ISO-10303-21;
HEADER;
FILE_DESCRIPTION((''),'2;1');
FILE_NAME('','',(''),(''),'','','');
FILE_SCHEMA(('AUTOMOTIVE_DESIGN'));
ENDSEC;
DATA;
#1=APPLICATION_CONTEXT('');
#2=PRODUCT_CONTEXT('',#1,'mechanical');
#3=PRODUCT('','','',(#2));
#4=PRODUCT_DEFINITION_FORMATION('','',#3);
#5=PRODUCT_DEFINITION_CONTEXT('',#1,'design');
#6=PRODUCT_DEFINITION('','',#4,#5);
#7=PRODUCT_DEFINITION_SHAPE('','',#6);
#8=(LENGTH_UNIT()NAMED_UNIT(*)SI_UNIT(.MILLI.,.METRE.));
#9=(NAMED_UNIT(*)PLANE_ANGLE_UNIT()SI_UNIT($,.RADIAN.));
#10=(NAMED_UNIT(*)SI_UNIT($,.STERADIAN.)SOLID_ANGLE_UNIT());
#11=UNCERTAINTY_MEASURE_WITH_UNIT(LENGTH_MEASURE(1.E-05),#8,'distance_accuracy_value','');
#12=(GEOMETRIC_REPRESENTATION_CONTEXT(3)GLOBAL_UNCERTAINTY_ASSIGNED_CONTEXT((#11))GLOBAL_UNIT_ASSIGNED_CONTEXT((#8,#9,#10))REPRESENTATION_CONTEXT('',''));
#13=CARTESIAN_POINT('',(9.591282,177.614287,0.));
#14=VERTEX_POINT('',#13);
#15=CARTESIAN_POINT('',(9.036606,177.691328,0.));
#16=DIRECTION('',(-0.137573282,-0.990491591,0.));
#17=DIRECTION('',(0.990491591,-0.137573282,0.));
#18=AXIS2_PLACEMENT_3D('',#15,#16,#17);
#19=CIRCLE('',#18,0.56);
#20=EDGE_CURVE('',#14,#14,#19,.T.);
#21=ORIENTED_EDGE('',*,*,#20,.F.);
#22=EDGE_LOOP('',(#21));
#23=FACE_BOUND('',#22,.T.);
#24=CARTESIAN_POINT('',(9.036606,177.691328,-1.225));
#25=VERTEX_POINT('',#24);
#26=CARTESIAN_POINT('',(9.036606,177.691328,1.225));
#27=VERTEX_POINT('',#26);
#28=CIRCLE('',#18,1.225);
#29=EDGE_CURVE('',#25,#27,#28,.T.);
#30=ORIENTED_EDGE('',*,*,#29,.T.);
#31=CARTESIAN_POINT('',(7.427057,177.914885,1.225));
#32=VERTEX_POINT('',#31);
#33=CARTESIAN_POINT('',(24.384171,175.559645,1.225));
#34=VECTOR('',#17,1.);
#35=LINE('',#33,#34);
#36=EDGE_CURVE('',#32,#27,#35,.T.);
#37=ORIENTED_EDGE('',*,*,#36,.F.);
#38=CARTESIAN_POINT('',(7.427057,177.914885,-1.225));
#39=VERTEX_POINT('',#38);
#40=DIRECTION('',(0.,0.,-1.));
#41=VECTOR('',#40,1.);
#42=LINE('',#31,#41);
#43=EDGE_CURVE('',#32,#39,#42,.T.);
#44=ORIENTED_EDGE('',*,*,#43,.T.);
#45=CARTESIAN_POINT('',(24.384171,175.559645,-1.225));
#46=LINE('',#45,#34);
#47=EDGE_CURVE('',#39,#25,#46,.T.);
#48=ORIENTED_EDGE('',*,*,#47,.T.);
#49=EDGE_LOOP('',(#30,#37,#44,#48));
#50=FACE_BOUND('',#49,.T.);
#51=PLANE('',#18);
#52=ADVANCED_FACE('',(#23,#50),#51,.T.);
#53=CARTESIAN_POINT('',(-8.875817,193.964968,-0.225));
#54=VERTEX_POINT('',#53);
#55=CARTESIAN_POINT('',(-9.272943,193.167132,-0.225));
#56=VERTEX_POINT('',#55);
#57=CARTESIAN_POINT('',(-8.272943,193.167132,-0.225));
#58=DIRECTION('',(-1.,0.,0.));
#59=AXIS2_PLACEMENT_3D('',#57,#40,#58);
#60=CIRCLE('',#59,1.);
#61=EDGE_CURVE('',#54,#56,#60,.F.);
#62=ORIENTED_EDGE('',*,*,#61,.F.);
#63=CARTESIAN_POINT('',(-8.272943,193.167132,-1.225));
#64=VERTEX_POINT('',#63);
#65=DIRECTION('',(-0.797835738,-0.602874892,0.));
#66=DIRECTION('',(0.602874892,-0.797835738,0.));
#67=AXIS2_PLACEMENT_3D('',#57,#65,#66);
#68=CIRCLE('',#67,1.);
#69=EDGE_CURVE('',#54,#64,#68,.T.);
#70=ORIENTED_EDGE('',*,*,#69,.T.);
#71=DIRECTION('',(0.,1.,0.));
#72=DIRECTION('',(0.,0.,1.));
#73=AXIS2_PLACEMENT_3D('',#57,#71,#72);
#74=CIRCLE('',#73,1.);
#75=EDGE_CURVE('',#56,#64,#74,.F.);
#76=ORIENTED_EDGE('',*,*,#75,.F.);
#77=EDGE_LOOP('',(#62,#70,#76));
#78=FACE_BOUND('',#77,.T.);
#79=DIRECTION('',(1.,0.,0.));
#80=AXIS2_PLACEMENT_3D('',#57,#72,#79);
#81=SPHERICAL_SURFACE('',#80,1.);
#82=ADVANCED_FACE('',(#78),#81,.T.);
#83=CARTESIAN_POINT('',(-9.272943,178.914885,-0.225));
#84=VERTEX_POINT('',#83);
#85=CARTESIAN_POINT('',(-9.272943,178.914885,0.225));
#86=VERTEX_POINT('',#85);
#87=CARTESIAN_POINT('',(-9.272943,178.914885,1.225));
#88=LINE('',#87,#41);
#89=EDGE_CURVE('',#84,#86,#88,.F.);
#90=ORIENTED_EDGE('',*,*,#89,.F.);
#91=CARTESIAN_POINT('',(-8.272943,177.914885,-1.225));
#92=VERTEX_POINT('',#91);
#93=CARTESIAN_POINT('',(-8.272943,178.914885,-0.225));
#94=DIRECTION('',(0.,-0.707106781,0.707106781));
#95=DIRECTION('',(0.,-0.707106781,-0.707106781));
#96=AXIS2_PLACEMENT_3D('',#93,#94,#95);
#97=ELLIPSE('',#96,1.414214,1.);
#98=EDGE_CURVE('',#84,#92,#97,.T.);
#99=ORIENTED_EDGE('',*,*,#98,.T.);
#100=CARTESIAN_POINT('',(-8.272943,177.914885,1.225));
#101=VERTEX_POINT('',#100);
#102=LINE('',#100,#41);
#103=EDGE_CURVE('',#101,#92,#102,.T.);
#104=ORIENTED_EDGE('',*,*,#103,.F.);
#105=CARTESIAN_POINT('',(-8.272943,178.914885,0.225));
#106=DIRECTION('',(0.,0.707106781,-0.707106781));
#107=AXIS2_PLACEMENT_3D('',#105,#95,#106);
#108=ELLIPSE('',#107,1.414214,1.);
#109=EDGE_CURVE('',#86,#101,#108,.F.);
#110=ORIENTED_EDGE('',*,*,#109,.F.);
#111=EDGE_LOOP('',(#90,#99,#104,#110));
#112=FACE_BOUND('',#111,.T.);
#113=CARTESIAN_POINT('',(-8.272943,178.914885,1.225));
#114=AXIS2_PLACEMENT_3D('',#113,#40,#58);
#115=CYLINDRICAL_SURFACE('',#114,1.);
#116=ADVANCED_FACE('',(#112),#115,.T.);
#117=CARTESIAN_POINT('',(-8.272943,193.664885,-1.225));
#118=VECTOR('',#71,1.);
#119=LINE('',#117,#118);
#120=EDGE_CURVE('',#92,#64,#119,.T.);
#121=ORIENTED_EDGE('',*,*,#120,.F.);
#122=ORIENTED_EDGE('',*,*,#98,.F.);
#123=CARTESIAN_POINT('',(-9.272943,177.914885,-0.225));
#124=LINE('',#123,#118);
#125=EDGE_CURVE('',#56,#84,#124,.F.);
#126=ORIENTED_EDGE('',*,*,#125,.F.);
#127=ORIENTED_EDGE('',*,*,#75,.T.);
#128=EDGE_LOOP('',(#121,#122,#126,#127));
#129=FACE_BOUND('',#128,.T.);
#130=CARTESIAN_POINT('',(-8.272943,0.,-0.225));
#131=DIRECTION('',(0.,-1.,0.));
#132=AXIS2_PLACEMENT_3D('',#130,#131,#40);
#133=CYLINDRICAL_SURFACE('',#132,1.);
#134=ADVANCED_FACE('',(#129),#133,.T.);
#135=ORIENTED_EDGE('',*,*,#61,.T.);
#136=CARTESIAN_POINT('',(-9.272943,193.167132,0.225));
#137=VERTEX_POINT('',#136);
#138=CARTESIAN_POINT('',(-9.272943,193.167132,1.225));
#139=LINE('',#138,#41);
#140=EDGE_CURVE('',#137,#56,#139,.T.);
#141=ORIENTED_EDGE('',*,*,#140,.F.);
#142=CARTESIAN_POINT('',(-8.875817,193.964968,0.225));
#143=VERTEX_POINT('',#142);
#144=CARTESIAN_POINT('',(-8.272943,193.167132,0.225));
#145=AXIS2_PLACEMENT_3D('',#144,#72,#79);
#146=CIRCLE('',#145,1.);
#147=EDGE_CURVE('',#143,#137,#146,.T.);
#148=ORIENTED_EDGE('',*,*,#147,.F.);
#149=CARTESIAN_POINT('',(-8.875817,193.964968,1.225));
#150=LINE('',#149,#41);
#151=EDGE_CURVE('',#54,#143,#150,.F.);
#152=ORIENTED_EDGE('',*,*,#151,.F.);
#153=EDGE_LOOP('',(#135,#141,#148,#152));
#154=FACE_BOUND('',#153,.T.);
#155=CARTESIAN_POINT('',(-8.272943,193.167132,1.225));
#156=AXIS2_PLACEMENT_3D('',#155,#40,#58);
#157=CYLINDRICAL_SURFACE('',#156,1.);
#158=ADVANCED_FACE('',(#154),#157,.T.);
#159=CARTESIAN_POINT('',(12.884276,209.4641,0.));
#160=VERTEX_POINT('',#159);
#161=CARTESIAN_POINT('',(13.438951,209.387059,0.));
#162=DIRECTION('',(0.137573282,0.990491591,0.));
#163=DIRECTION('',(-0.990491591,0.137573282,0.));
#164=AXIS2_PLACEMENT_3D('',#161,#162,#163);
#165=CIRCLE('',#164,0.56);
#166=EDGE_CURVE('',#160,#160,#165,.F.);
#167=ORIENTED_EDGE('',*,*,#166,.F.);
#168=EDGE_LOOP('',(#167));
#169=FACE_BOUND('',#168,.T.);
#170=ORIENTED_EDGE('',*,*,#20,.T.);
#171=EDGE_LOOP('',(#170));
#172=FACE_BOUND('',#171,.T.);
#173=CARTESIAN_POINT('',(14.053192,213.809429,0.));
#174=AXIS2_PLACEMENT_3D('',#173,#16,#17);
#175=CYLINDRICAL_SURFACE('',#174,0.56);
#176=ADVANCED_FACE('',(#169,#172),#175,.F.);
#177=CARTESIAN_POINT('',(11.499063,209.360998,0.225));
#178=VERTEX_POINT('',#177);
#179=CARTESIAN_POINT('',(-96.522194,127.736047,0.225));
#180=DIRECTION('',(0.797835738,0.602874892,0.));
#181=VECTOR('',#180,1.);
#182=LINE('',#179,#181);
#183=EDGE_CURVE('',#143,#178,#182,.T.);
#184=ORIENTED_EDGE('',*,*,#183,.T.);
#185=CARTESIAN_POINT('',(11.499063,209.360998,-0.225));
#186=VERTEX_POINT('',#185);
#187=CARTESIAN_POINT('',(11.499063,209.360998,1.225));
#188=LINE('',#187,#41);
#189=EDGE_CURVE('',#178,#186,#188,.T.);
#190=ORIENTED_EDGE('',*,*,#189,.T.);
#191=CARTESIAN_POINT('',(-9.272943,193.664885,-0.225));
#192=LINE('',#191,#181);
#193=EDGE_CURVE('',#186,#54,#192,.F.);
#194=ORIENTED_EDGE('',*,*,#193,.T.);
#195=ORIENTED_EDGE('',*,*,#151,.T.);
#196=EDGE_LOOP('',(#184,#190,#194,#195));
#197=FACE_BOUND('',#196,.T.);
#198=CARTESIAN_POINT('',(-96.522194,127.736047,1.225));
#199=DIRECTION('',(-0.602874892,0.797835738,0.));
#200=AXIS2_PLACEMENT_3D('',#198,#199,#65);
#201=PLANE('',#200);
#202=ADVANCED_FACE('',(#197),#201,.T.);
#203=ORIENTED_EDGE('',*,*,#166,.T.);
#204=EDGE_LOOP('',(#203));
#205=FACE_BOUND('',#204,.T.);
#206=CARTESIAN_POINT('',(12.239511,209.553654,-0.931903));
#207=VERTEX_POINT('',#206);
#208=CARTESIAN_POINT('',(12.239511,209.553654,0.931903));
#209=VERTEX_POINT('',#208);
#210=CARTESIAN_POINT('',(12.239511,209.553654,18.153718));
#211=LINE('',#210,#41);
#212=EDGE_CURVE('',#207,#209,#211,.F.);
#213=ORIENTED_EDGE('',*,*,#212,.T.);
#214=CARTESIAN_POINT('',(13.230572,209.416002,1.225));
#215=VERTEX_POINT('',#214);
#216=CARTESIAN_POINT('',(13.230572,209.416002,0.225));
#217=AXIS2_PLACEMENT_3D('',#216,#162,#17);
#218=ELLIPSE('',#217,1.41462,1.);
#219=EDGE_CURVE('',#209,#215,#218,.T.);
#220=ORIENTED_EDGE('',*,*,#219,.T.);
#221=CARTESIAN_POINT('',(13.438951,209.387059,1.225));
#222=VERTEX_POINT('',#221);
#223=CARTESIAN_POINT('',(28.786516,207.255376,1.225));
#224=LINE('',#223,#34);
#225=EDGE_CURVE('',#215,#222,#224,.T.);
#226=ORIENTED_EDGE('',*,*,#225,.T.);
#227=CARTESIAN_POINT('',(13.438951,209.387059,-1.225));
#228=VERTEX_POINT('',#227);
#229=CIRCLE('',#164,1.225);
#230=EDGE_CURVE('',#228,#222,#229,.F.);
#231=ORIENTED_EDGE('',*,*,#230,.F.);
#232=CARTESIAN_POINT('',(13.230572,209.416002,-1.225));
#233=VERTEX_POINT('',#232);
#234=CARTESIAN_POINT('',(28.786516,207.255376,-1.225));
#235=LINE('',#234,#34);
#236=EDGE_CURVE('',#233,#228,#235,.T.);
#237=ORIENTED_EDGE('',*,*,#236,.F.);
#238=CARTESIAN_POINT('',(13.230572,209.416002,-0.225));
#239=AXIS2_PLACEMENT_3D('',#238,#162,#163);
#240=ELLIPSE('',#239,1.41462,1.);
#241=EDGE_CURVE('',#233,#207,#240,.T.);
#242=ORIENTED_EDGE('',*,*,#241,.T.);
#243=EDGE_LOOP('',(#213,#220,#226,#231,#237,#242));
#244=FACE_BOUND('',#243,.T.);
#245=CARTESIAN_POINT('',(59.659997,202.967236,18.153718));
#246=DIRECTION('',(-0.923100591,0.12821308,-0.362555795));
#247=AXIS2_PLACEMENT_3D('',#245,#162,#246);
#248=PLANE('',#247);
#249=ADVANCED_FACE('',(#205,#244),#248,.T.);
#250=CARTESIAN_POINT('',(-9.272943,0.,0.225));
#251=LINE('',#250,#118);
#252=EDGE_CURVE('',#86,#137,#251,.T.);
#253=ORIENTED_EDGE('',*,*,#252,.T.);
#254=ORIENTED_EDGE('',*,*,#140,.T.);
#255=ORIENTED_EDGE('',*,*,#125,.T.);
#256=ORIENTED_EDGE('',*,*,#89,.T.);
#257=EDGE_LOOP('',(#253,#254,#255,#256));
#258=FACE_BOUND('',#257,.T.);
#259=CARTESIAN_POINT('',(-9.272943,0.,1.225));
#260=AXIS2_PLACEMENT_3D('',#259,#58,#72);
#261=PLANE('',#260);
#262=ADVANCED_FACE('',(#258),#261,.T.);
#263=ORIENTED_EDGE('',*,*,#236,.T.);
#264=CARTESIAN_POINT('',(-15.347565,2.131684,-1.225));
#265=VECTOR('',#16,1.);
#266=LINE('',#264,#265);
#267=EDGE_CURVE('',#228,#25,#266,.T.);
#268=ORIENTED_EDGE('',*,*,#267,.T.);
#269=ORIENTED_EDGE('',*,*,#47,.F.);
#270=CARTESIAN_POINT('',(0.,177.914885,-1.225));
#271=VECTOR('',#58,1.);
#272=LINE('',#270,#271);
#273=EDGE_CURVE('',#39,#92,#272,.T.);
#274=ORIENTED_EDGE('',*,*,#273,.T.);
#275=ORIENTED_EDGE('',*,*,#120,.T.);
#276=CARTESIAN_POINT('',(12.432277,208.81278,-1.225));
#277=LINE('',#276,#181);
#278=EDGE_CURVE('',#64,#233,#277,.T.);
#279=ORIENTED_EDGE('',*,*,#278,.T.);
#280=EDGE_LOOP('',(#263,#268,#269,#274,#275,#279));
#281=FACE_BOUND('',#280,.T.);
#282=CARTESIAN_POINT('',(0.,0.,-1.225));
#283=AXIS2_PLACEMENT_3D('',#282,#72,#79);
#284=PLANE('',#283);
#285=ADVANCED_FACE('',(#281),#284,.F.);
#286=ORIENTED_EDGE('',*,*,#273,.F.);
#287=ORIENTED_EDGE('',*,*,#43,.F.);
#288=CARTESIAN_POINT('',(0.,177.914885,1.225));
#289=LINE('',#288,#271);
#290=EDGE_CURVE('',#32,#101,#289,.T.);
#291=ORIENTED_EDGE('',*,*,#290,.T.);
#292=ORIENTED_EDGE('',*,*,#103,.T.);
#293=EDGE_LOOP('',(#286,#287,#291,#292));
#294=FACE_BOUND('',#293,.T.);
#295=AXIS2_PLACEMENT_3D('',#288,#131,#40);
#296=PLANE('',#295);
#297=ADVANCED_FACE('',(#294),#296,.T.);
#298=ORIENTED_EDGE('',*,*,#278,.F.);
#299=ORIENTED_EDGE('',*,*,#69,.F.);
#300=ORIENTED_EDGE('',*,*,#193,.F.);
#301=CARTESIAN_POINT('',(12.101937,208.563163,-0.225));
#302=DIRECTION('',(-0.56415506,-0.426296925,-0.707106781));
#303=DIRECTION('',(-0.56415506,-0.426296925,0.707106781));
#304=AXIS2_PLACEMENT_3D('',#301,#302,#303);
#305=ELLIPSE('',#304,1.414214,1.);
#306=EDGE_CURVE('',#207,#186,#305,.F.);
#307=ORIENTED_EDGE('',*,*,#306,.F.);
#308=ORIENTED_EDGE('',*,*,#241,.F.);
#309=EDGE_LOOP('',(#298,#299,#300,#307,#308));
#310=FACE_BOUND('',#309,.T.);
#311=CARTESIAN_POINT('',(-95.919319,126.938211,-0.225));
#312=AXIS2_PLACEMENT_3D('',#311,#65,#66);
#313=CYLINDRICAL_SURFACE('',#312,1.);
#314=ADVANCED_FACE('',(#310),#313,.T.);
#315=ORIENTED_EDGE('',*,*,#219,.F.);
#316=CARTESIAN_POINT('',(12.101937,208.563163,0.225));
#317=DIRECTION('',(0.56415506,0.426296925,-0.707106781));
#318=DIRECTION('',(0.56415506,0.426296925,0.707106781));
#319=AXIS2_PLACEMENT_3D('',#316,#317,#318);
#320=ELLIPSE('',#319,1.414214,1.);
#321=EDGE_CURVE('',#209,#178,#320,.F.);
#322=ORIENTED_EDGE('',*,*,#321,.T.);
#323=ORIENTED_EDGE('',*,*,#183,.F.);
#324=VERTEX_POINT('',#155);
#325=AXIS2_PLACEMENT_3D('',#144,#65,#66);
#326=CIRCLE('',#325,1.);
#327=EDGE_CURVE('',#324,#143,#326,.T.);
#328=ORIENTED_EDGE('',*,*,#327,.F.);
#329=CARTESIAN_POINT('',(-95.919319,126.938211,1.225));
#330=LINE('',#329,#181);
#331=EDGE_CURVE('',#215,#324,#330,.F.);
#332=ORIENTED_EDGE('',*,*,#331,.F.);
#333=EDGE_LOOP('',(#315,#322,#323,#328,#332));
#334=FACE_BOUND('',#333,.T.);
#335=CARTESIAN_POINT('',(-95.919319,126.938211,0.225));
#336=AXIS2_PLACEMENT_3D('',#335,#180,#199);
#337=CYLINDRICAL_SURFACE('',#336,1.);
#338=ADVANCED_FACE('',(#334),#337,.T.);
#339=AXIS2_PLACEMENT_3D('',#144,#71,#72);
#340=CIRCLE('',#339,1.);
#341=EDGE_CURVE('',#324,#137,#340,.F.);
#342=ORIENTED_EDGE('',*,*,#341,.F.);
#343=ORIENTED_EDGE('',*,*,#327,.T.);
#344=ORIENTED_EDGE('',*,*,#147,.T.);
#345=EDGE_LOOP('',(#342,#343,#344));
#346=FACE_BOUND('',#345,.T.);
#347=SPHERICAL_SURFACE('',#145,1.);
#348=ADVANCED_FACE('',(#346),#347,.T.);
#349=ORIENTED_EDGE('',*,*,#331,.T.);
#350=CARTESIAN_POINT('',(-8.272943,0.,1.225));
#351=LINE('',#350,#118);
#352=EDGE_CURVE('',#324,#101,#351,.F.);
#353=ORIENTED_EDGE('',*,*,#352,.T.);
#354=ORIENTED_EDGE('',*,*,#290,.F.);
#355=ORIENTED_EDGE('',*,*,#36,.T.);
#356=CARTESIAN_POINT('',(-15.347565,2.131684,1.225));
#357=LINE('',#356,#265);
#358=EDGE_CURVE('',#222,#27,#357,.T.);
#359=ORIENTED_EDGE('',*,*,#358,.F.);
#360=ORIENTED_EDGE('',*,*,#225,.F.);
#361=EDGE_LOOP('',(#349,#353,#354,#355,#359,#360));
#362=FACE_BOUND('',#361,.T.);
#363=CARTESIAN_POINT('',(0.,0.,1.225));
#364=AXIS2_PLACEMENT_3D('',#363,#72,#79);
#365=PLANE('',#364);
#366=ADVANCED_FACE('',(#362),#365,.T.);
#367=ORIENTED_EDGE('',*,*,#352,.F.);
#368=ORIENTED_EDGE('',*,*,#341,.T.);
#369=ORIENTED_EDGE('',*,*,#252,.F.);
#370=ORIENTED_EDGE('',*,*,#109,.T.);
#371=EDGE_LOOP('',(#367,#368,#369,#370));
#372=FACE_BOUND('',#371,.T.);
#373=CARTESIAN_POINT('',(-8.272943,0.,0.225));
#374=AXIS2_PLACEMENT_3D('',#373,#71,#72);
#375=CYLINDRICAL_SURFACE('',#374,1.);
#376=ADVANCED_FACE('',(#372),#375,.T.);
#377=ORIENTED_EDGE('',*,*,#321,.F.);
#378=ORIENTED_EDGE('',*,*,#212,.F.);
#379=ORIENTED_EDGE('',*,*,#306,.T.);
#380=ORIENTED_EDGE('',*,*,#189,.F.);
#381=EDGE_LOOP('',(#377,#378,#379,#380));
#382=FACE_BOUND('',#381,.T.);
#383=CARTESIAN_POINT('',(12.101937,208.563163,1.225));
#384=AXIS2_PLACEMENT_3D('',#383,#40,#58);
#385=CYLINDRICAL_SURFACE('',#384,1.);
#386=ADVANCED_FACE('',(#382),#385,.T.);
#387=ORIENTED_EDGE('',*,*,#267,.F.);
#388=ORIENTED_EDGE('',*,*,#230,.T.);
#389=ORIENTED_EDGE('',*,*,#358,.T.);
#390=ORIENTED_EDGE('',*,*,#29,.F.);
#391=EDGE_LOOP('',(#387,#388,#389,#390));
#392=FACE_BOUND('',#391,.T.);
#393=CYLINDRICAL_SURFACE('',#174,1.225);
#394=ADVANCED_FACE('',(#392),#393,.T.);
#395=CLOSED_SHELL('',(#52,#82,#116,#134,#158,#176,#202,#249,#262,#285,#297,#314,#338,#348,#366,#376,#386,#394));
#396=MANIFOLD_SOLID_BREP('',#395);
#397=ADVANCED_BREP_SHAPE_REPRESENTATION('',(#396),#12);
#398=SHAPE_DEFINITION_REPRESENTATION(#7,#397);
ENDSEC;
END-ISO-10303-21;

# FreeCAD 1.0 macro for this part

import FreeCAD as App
import Part
import Sketcher


def edges_at(feature, points):
    """Names of the edges that pass closest to the given points."""
    edges = feature.Shape.Edges
    near = lambda p: min(range(len(edges)), key=lambda i: edges[i].distToShape(Part.Vertex(*p))[0])
    return sorted({f"Edge{near(p) + 1}" for p in points})

doc = App.newDocument("Part")
body = doc.addObject("PartDesign::Body", "Body")

# Sketch on an angled plane
sketch1 = doc.addObject("Sketcher::SketchObject", "Sketch")
body.addObject(sketch1)
sketch1.Placement = App.Placement(App.Vector(24.384171, 175.559645, 0), App.Rotation(App.Vector(-0.990491591, 0.137573282, 0), App.Vector(0, 0, -1), App.Vector(-0.137573282, -0.990491591, 0), "ZXY"))
sketch1.addGeometry([
    Part.Circle(App.Vector(15.5, 0, 0), App.Vector(0, 0, 1), 1.2),
    Part.Circle(App.Vector(15.5, 0, 0), App.Vector(0, 0, 1), 0.6),
], False)
sketch1.addConstraint([
    Sketcher.Constraint("Coincident", 1, 3, 0, 3),
    Sketcher.Constraint("PointOnObject", 0, 3, -1),
    Sketcher.Constraint("Diameter", 0, 2.45),
    Sketcher.Constraint("Diameter", 1, 1.12),
    Sketcher.Constraint("DistanceX", -1, 1, 0, 3, 15.494897),
])
pad1 = doc.addObject("PartDesign::Pad", "Pad")
body.addObject(pad1)
pad1.Profile = sketch1
pad1.Length = 32
pad1.Reversed = True

# Sketch on XY plane
sketch2 = doc.addObject("Sketcher::SketchObject", "Sketch001")
body.addObject(sketch2)
sketch2.AttachmentSupport = (doc.XY_Plane, [""])
sketch2.MapMode = "FlatFace"
sketch2.addGeometry([
    Part.LineSegment(App.Vector(11.8, 209.6, 0), App.Vector(-9.3, 193.7, 0)),  # 0
    Part.LineSegment(App.Vector(-9.3, 193.7, 0), App.Vector(-9.3, 177.9, 0)),  # 1
    Part.LineSegment(App.Vector(-9.3, 177.9, 0), App.Vector(7.4, 177.9, 0)),  # 2
    Part.LineSegment(App.Vector(7.4, 177.9, 0), App.Vector(9, 177.7, 0)),  # 3
    Part.LineSegment(App.Vector(9, 177.7, 0), App.Vector(13.4, 209.4, 0)),  # 4
    Part.LineSegment(App.Vector(13.4, 209.4, 0), App.Vector(11.8, 209.6, 0)),  # 5
], False)
sketch2.addConstraint([
    Sketcher.Constraint("Coincident", 0, 2, 1, 1),
    Sketcher.Constraint("Coincident", 1, 2, 2, 1),
    Sketcher.Constraint("Coincident", 2, 2, 3, 1),
    Sketcher.Constraint("Coincident", 3, 2, 4, 1),
    Sketcher.Constraint("Coincident", 4, 2, 5, 1),
    Sketcher.Constraint("Coincident", 5, 2, 0, 1),
    Sketcher.Constraint("Vertical", 1),
    Sketcher.Constraint("Horizontal", 2),
    Sketcher.Constraint("Perpendicular", 3, 4),
    Sketcher.Constraint("Perpendicular", 4, 5),
    Sketcher.Constraint("Equal", 3, 5),
    Sketcher.Constraint("Distance", 4, 32.0),
    Sketcher.Constraint("DistanceX", 2, 1, 2, 2, 16.7),
    Sketcher.Constraint("DistanceY", 1, 2, 1, 1, 15.75),
    Sketcher.Constraint("Distance", 3, 1.625),
    Sketcher.Constraint("DistanceY", -1, 1, 3, 2, 177.691328),
    Sketcher.Constraint("DistanceX", -1, 1, 4, 2, 13.438951),
    Sketcher.Constraint("DistanceY", -1, 1, 4, 2, 209.387059),
])
pad2 = doc.addObject("PartDesign::Pad", "Pad001")
body.addObject(pad2)
pad2.Profile = sketch2
pad2.Length = 2.45
pad2.Midplane = True

# Sketch on an angled plane
sketch3 = doc.addObject("Sketcher::SketchObject", "Sketch002")
body.addObject(sketch3)
sketch3.Placement = App.Placement(App.Vector(24.384171, 175.559645, 0), App.Rotation(App.Vector(0.990491591, -0.137573282, 0), App.Vector(0, 0, 1), App.Vector(-0.137573282, -0.990491591, 0), "ZXY"))
sketch3.addGeometry(Part.Circle(App.Vector(-15.5, 0, 0), App.Vector(0, 0, 1), 0.6), False)
sketch3.addConstraint([
    Sketcher.Constraint("PointOnObject", 0, 3, -1),
    Sketcher.Constraint("Diameter", 0, 1.12),
    Sketcher.Constraint("DistanceX", 0, 3, -1, 1, 15.494897),
])
pocket1 = doc.addObject("PartDesign::Pocket", "Pocket")
body.addObject(pocket1)
pocket1.Profile = sketch3
pocket1.Length = 32
doc.recompute()

fillet = doc.addObject("PartDesign::Fillet", "Fillet")
body.addObject(fillet)
fillet.Base = (pocket1, edges_at(pocket1, [
    (1.278, 201.638, 1.225),
    (11.829, 209.611, 0),
    (-9.273, 185.79, 1.225),
    (-9.273, 193.665, 0),
    (-9.273, 177.915, 0),
    (1.278, 201.638, -1.225),
    (-9.273, 185.79, -1.225),
]))
fillet.Radius = 1

doc.recompute()
